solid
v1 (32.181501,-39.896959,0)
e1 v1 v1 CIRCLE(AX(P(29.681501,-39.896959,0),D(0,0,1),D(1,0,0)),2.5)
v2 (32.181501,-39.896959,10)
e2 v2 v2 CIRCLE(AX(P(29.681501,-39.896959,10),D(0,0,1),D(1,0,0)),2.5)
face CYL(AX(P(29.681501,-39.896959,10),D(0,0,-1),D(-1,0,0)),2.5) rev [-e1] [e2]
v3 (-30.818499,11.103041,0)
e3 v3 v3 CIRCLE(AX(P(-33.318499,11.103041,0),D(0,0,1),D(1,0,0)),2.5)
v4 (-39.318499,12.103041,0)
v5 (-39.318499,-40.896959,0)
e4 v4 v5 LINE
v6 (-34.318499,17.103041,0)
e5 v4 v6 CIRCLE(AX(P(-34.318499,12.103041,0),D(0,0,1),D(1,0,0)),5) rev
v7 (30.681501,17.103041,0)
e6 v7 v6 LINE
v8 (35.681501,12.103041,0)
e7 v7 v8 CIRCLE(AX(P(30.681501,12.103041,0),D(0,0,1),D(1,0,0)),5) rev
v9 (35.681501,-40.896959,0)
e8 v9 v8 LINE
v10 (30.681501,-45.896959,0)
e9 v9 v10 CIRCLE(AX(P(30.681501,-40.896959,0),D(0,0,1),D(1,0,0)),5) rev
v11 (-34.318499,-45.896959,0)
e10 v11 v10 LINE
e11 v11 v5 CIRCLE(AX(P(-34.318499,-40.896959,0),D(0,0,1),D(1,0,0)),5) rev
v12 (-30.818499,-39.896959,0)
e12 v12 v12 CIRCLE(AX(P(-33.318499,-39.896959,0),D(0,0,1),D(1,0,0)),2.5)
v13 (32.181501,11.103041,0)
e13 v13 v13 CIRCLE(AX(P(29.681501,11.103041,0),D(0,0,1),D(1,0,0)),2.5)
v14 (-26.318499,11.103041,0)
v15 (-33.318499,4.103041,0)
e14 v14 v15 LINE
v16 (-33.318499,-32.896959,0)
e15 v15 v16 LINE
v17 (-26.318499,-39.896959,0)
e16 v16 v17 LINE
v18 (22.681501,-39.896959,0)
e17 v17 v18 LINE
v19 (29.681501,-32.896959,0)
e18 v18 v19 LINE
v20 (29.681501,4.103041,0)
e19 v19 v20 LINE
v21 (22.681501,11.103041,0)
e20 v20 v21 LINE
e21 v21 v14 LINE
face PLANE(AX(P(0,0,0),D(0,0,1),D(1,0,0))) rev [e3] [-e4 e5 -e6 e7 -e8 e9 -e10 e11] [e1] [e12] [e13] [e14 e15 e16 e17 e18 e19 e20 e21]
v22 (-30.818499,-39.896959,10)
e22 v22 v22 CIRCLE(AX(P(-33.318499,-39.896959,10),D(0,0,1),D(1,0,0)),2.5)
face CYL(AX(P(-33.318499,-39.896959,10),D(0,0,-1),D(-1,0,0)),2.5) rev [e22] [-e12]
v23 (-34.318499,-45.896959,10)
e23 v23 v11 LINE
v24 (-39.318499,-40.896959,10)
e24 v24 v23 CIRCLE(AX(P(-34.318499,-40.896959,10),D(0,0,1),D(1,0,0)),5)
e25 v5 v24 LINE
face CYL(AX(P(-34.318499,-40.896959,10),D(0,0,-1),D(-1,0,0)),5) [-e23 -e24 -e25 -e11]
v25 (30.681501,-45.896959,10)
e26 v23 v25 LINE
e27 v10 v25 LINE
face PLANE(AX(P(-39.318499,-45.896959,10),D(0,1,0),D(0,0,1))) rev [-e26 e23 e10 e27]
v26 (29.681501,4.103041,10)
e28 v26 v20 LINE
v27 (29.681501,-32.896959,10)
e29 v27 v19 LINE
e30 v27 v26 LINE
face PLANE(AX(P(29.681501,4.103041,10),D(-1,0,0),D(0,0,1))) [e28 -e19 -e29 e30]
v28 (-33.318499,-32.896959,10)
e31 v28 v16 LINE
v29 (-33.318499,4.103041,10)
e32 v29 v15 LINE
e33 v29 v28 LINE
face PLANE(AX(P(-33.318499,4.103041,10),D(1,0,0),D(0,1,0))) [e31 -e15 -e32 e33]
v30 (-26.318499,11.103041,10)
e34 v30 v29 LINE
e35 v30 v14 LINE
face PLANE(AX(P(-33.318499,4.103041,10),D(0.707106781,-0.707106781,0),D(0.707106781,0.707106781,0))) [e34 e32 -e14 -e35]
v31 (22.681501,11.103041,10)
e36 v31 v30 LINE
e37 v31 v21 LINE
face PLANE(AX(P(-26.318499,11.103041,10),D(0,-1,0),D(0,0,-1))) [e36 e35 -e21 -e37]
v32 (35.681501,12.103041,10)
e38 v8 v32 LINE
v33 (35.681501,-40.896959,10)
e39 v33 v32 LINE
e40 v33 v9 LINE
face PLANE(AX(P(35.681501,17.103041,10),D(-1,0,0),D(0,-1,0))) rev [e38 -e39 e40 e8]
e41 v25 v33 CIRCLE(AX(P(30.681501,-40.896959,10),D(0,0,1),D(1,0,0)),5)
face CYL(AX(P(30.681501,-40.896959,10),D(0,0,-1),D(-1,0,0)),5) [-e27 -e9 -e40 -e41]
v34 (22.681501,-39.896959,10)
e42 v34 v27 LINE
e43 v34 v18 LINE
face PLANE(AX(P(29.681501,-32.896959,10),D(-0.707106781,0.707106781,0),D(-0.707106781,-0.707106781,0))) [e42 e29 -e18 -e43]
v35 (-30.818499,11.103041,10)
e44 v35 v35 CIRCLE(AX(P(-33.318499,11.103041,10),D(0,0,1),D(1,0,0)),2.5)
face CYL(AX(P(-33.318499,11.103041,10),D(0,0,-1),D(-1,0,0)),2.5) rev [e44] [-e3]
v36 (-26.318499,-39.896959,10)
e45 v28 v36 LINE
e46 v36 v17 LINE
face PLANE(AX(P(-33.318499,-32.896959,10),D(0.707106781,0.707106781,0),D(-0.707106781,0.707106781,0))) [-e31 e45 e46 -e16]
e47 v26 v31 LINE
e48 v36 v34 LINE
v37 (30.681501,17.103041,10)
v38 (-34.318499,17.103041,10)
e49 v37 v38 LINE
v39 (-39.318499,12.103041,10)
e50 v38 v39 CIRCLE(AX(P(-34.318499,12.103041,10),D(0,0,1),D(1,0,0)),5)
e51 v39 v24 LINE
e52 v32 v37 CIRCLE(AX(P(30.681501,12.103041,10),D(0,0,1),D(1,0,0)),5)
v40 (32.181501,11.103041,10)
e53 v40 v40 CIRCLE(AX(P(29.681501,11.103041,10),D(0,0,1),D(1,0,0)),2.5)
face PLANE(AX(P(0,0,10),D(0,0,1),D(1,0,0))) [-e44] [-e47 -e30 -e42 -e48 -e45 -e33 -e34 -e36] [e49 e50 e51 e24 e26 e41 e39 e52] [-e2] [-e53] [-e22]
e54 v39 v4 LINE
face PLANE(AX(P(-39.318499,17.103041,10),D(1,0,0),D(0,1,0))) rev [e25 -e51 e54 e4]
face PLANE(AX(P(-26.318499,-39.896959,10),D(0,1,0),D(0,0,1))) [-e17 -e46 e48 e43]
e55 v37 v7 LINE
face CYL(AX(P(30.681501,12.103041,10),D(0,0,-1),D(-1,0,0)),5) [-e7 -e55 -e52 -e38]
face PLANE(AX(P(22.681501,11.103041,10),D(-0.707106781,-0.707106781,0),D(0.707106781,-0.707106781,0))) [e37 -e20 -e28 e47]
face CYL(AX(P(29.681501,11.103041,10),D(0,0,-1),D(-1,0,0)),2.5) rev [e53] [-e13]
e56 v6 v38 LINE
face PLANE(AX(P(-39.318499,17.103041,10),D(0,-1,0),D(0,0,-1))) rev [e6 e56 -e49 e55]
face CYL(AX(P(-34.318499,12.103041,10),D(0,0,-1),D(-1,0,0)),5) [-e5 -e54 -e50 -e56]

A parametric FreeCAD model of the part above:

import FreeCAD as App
import Part
import Sketcher

V = App.Vector
Q = App.Units.Quantity


def edges_at(feature, points):
    """Names of the edges that pass closest to the given points."""
    edges = feature.Shape.Edges
    near = lambda p: min(range(len(edges)), key=lambda i: edges[i].distToShape(Part.Vertex(*p))[0])
    return sorted({f"Edge{near(p) + 1}" for p in points})

doc = App.newDocument("Part")
body = doc.addObject("PartDesign::Body", "Body")

sketch1 = doc.addObject("Sketcher::SketchObject", "Sketch")
body.addObject(sketch1)
sketch1.AttachmentSupport = (doc.XY_Plane, [""])
sketch1.MapMode = "FlatFace"
sketch1.addGeometry([
    Part.LineSegment(V(-39.3, 17.1, 0), V(-39.3, -45.9, 0)),
    Part.LineSegment(V(-39.3, -45.9, 0), V(35.7, -45.9, 0)),
    Part.LineSegment(V(35.7, -45.9, 0), V(35.7, 17.1, 0)),
    Part.LineSegment(V(35.7, 17.1, 0), V(-39.3, 17.1, 0)),
    Part.Circle(V(-33.3, -39.9, 0), V(0, 0, 1), 2.5),
    Part.Circle(V(29.7, -39.9, 0), V(0, 0, 1), 2.5),
    Part.Circle(V(-33.3, 11.1, 0), V(0, 0, 1), 2.5),
    Part.LineSegment(V(-33.3, -32.9, 0), V(-33.3, 4.1, 0)),
    Part.LineSegment(V(-33.3, 4.1, 0), V(-26.3, 11.1, 0)),
    Part.LineSegment(V(-26.3, 11.1, 0), V(22.7, 11.1, 0)),
    Part.LineSegment(V(22.7, 11.1, 0), V(29.7, 4.1, 0)),
    Part.LineSegment(V(29.7, 4.1, 0), V(29.7, -32.9, 0)),
    Part.LineSegment(V(29.7, -32.9, 0), V(22.7, -39.9, 0)),
    Part.LineSegment(V(22.7, -39.9, 0), V(-26.3, -39.9, 0)),
    Part.LineSegment(V(-26.3, -39.9, 0), V(-33.3, -32.9, 0)),
    Part.Circle(V(29.7, 11.1, 0), V(0, 0, 1), 2.5),
], False)
sketch1.addConstraint([
    Sketcher.Constraint("Coincident", 0, 2, 1, 1),
    Sketcher.Constraint("Coincident", 1, 2, 2, 1),
    Sketcher.Constraint("Coincident", 2, 2, 3, 1),
    Sketcher.Constraint("Coincident", 3, 2, 0, 1),
    Sketcher.Constraint("Coincident", 7, 2, 8, 1),
    Sketcher.Constraint("Coincident", 8, 2, 9, 1),
    Sketcher.Constraint("Coincident", 9, 2, 10, 1),
    Sketcher.Constraint("Coincident", 10, 2, 11, 1),
    Sketcher.Constraint("Coincident", 11, 2, 12, 1),
    Sketcher.Constraint("Coincident", 12, 2, 13, 1),
    Sketcher.Constraint("Coincident", 13, 2, 14, 1),
    Sketcher.Constraint("Coincident", 14, 2, 7, 1),
    Sketcher.Constraint("Vertical", 0),
    Sketcher.Constraint("Horizontal", 1),
    Sketcher.Constraint("Vertical", 2),
    Sketcher.Constraint("Horizontal", 3),
    Sketcher.Constraint("Vertical", 7),
    Sketcher.Constraint("Horizontal", 9),
    Sketcher.Constraint("Vertical", 11),
    Sketcher.Constraint("Horizontal", 13),
    Sketcher.Constraint("Equal", 4, 5),
    Sketcher.Constraint("Equal", 5, 6),
    Sketcher.Constraint("Equal", 6, 15),
    Sketcher.Constraint("Perpendicular", 8, 10),
    Sketcher.Constraint("Perpendicular", 10, 12),
    Sketcher.Constraint("Perpendicular", 12, 14),
    Sketcher.Constraint("Horizontal", 4, 3, 5, 3),
    Sketcher.Constraint("Horizontal", 6, 3, 15, 3),
    Sketcher.Constraint("Horizontal", 15, 3, 8, 2),
    Sketcher.Constraint("Horizontal", 7, 2, 10, 2),
    Sketcher.Constraint("Horizontal", 5, 3, 12, 2),
    Sketcher.Constraint("Horizontal", 11, 2, 14, 2),
    Sketcher.Constraint("Vertical", 4, 3, 6, 3),
    Sketcher.Constraint("Vertical", 5, 3, 15, 3),
    Sketcher.Constraint("Vertical", 6, 3, 7, 2),
    Sketcher.Constraint("Vertical", 15, 3, 10, 2),
    Sketcher.Constraint("Vertical", 9, 2, 12, 2),
    Sketcher.Constraint("Vertical", 8, 2, 13, 2),
    Sketcher.Constraint("Diameter", 4, Q("5 mm")),
    Sketcher.Constraint("DistanceX", 1, 1, 1, 2, Q("75 mm")),
    Sketcher.Constraint("DistanceX", 9, 1, 9, 2, Q("49 mm")),
    Sketcher.Constraint("DistanceY", 0, 2, 0, 1, Q("63 mm")),
    Sketcher.Constraint("DistanceY", 7, 1, 7, 2, Q("37 mm")),
    Sketcher.Constraint("DistanceX", 4, 3, 5, 3, Q("63 mm")),
    Sketcher.Constraint("DistanceX", 0, 2, 4, 3, Q("6 mm")),
    Sketcher.Constraint("DistanceY", 0, 2, 4, 3, Q("6 mm")),
    Sketcher.Constraint("DistanceX", 4, 3, -1, 1, Q("33.318499 mm")),
    Sketcher.Constraint("DistanceY", 4, 3, -1, 1, Q("39.896959 mm")),
])
pad1 = doc.addObject("PartDesign::Pad", "Pad")
body.addObject(pad1)
pad1.Profile = sketch1
pad1.Length = 10
doc.recompute()

fillet = doc.addObject("PartDesign::Fillet", "Fillet")
body.addObject(fillet)
fillet.Base = (pad1, edges_at(pad1, [
    (-39.318, 17.103, 5),
    (35.682, 17.103, 5),
    (35.682, -45.897, 5),
    (-39.318, -45.897, 5),
]))
fillet.Radius = 5

doc.recompute()
